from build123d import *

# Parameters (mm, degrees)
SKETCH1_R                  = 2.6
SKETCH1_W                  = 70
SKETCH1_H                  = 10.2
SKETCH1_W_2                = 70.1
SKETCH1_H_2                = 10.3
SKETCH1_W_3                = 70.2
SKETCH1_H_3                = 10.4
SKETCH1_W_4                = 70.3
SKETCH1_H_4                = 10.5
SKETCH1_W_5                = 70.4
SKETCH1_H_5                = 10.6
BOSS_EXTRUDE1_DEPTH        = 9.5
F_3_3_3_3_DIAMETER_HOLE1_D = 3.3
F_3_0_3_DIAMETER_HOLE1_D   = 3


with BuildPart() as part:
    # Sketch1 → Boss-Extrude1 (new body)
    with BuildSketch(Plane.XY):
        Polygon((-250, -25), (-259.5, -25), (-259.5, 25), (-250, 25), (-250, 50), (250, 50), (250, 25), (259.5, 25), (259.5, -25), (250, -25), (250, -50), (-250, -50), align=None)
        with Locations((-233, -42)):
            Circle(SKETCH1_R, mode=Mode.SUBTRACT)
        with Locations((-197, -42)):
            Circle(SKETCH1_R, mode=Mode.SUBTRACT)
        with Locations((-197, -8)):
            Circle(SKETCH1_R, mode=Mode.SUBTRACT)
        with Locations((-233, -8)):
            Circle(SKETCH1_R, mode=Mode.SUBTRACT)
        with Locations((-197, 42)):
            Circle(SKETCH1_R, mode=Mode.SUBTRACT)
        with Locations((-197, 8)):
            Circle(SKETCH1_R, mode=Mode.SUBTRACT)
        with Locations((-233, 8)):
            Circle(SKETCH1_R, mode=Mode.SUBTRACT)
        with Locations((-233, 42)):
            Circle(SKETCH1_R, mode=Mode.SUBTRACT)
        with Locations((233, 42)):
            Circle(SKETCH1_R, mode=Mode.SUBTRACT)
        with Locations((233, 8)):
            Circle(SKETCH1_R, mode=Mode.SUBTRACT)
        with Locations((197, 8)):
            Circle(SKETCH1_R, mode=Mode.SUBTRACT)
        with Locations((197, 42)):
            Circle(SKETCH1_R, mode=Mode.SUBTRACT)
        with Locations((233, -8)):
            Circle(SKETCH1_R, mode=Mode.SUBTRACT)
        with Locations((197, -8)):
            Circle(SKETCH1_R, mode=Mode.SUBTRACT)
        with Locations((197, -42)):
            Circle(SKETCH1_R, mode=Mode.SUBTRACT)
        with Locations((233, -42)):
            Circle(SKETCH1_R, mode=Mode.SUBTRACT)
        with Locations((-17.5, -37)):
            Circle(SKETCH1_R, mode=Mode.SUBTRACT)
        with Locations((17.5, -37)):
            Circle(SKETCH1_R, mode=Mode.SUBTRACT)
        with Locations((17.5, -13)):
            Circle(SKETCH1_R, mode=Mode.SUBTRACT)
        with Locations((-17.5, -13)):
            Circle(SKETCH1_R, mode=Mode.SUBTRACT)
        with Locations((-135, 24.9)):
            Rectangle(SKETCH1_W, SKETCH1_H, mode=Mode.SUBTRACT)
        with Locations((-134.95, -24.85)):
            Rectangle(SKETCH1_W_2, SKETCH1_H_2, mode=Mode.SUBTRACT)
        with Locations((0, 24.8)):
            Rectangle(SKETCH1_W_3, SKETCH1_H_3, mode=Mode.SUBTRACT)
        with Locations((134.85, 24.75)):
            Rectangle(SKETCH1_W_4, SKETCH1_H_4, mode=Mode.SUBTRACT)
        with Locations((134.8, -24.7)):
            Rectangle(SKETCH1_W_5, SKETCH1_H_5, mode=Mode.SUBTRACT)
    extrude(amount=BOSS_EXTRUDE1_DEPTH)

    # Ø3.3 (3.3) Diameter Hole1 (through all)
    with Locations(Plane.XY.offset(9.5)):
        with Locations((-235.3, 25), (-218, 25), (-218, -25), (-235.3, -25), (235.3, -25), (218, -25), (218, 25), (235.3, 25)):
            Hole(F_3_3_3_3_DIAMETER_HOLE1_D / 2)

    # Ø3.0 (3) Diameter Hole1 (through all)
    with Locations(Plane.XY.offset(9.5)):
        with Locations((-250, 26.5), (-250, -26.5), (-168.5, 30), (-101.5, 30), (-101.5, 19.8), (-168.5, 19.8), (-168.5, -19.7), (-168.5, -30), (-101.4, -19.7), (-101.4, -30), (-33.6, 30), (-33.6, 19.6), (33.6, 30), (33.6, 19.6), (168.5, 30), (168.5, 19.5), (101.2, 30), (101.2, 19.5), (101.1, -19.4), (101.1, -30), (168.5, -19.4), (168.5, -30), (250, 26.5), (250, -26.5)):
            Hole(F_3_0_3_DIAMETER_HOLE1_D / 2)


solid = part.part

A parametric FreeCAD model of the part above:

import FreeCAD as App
import Part
import Sketcher
Q = App.Units.Quantity


def add_polygon(sketch, points):
    """Adds a closed chain of lines whose ends are joined by coincident constraints."""
    first, n = sketch.GeometryCount, len(points)
    for a, b in zip(points, points[1:] + points[:1]):
        sketch.addGeometry(Part.LineSegment(App.Vector(*a, 0), App.Vector(*b, 0)), False)
    for i in range(n):
        sketch.addConstraint(Sketcher.Constraint("Coincident", first + i, 2, first + (i + 1) % n, 1))

doc = App.newDocument("Part")
body = doc.addObject("PartDesign::Body", "Body")

# Sketch on XY plane
sketch1 = doc.addObject("Sketcher::SketchObject", "Sketch")
body.addObject(sketch1)
sketch1.AttachmentSupport = (doc.XY_Plane, [""])
sketch1.MapMode = "FlatFace"
add_polygon(sketch1, [(-259.5, -25), (-250, -25), (-250, -50), (250, -50), (250, -25), (259.5, -25), (259.5, 25), (250, 25), (250, 50), (-250, 50), (-250, 25), (-259.5, 25)])  # lines 0-11
sketch1.addGeometry(Part.Circle(App.Vector(233, -42, 0), App.Vector(0, 0, 1), 2.6), False)  # 12
sketch1.addGeometry(Part.Circle(App.Vector(197, -42, 0), App.Vector(0, 0, 1), 2.6), False)  # 13
add_polygon(sketch1, [(99.6, -30), (99.6, -19.4), (170, -19.4), (170, -30)])  # lines 14-17
sketch1.addGeometry(Part.Circle(App.Vector(17.5, -37, 0), App.Vector(0, 0, 1), 2.6), False)  # 18
sketch1.addGeometry(Part.Circle(App.Vector(233, -8, 0), App.Vector(0, 0, 1), 2.6), False)  # 19
sketch1.addGeometry(Part.Circle(App.Vector(197, -8, 0), App.Vector(0, 0, 1), 2.6), False)  # 20
sketch1.addGeometry(Part.Circle(App.Vector(17.5, -13, 0), App.Vector(0, 0, 1), 2.6), False)  # 21
sketch1.addGeometry(Part.Circle(App.Vector(-17.5, -37, 0), App.Vector(0, 0, 1), 2.6), False)  # 22
sketch1.addGeometry(Part.Circle(App.Vector(-197, -42, 0), App.Vector(0, 0, 1), 2.6), False)  # 23
sketch1.addGeometry(Part.Circle(App.Vector(-233, -42, 0), App.Vector(0, 0, 1), 2.6), False)  # 24
add_polygon(sketch1, [(-170, -30), (-170, -19.7), (-99.9, -19.7), (-99.9, -30)])  # lines 25-28
sketch1.addGeometry(Part.Circle(App.Vector(-17.5, -13, 0), App.Vector(0, 0, 1), 2.6), False)  # 29
sketch1.addGeometry(Part.Circle(App.Vector(-197, -8, 0), App.Vector(0, 0, 1), 2.6), False)  # 30
sketch1.addGeometry(Part.Circle(App.Vector(-233, -8, 0), App.Vector(0, 0, 1), 2.6), False)  # 31
sketch1.addGeometry(Part.Circle(App.Vector(233, 8, 0), App.Vector(0, 0, 1), 2.6), False)  # 32
sketch1.addGeometry(Part.Circle(App.Vector(197, 8, 0), App.Vector(0, 0, 1), 2.6), False)  # 33
add_polygon(sketch1, [(99.7, 19.5), (99.7, 30), (170, 30), (170, 19.5)])  # lines 34-37
sketch1.addGeometry(Part.Circle(App.Vector(233, 42, 0), App.Vector(0, 0, 1), 2.6), False)  # 38
sketch1.addGeometry(Part.Circle(App.Vector(197, 42, 0), App.Vector(0, 0, 1), 2.6), False)  # 39
sketch1.addGeometry(Part.Circle(App.Vector(-197, 8, 0), App.Vector(0, 0, 1), 2.6), False)  # 40
sketch1.addGeometry(Part.Circle(App.Vector(-233, 8, 0), App.Vector(0, 0, 1), 2.6), False)  # 41
add_polygon(sketch1, [(-35.1, 19.6), (-35.1, 30), (35.1, 30), (35.1, 19.6)])  # lines 42-45
add_polygon(sketch1, [(-170, 19.8), (-170, 30), (-100, 30), (-100, 19.8)])  # lines 46-49
sketch1.addGeometry(Part.Circle(App.Vector(-197, 42, 0), App.Vector(0, 0, 1), 2.6), False)  # 50
sketch1.addGeometry(Part.Circle(App.Vector(-233, 42, 0), App.Vector(0, 0, 1), 2.6), False)  # 51
sketch1.addConstraint([
    Sketcher.Constraint("Horizontal", 0),
    Sketcher.Constraint("Vertical", 1),
    Sketcher.Constraint("Horizontal", 2),
    Sketcher.Constraint("Vertical", 3),
    Sketcher.Constraint("Horizontal", 4),
    Sketcher.Constraint("Vertical", 5),
    Sketcher.Constraint("Horizontal", 6),
    Sketcher.Constraint("Vertical", 7),
    Sketcher.Constraint("Horizontal", 8),
    Sketcher.Constraint("Vertical", 9),
    Sketcher.Constraint("Horizontal", 10),
    Sketcher.Constraint("Vertical", 11),
    Sketcher.Constraint("Vertical", 14),
    Sketcher.Constraint("Horizontal", 15),
    Sketcher.Constraint("Vertical", 16),
    Sketcher.Constraint("Horizontal", 17),
    Sketcher.Constraint("Vertical", 25),
    Sketcher.Constraint("Horizontal", 26),
    Sketcher.Constraint("Vertical", 27),
    Sketcher.Constraint("Horizontal", 28),
    Sketcher.Constraint("Vertical", 34),
    Sketcher.Constraint("Horizontal", 35),
    Sketcher.Constraint("Vertical", 36),
    Sketcher.Constraint("Horizontal", 37),
    Sketcher.Constraint("Vertical", 42),
    Sketcher.Constraint("Horizontal", 43),
    Sketcher.Constraint("Vertical", 44),
    Sketcher.Constraint("Horizontal", 45),
    Sketcher.Constraint("Vertical", 46),
    Sketcher.Constraint("Horizontal", 47),
    Sketcher.Constraint("Vertical", 48),
    Sketcher.Constraint("Horizontal", 49),
    Sketcher.Constraint("Equal", 12, 13),
    Sketcher.Constraint("Equal", 13, 18),
    Sketcher.Constraint("Equal", 18, 19),
    Sketcher.Constraint("Equal", 19, 20),
    Sketcher.Constraint("Equal", 20, 21),
    Sketcher.Constraint("Equal", 21, 22),
    Sketcher.Constraint("Equal", 22, 23),
    Sketcher.Constraint("Equal", 23, 24),
    Sketcher.Constraint("Equal", 24, 29),
    Sketcher.Constraint("Equal", 29, 30),
    Sketcher.Constraint("Equal", 30, 31),
    Sketcher.Constraint("Equal", 31, 32),
    Sketcher.Constraint("Equal", 32, 33),
    Sketcher.Constraint("Equal", 33, 38),
    Sketcher.Constraint("Equal", 38, 39),
    Sketcher.Constraint("Equal", 39, 40),
    Sketcher.Constraint("Equal", 40, 41),
    Sketcher.Constraint("Equal", 41, 50),
    Sketcher.Constraint("Equal", 50, 51),
    Sketcher.Constraint("Symmetric", 31, 3, 32, 3, -1, 1),
    Sketcher.Constraint("Symmetric", 30, 3, 33, 3, -1, 1),
    Sketcher.Constraint("Symmetric", 24, 3, 38, 3, -1, 1),
    Sketcher.Constraint("Symmetric", 23, 3, 39, 3, -1, 1),
    Sketcher.Constraint("Symmetric", 20, 3, 40, 3, -1, 1),
    Sketcher.Constraint("Symmetric", 19, 3, 41, 3, -1, 1),
    Sketcher.Constraint("Symmetric", 13, 3, 50, 3, -1, 1),
    Sketcher.Constraint("Symmetric", 12, 3, 51, 3, -1, 1),
    Sketcher.Constraint("Symmetric", 0, 2, 6, 2, -1, 1),
    Sketcher.Constraint("Symmetric", 2, 2, 8, 2, -1, 1),
    Sketcher.Constraint("Symmetric", 4, 2, 10, 2, -1, 1),
    Sketcher.Constraint("Symmetric", 28, 2, 35, 2, -1, 1),
    Sketcher.Constraint("Symmetric", 16, 2, 46, 2, -1, 1),
    Sketcher.Constraint("Symmetric", 18, 3, 22, 3, -2),
    Sketcher.Constraint("Symmetric", 13, 3, 23, 3, -2),
    Sketcher.Constraint("Symmetric", 12, 3, 24, 3, -2),
    Sketcher.Constraint("Symmetric", 21, 3, 29, 3, -2),
    Sketcher.Constraint("Symmetric", 20, 3, 30, 3, -2),
    Sketcher.Constraint("Symmetric", 19, 3, 31, 3, -2),
    Sketcher.Constraint("Symmetric", 0, 2, 3, 2, -2),
    Sketcher.Constraint("Symmetric", 16, 2, 28, 2, -2),
    Sketcher.Constraint("Horizontal", 12, 3, 13, 3),
    Sketcher.Constraint("Horizontal", 19, 3, 20, 3),
    Sketcher.Constraint("Horizontal", 35, 2, 42, 2),
    Sketcher.Constraint("Vertical", 12, 3, 19, 3),
    Sketcher.Constraint("Vertical", 13, 3, 20, 3),
    Sketcher.Constraint("Vertical", 18, 3, 21, 3),
    Sketcher.Constraint("Diameter", 12, Q("5.2 mm")),
    Sketcher.Constraint("DistanceX", 2, 1, 2, 2, Q("500 mm")),
    Sketcher.Constraint("DistanceX", 47, 1, 47, 2, Q("70 mm")),
    Sketcher.Constraint("DistanceY", 1, 2, 1, 1, Q("25 mm")),
    Sketcher.Constraint("DistanceY", 5, 1, 5, 2, Q("50 mm")),
    Sketcher.Constraint("DistanceX", 0, 1, 0, 2, Q("9.5 mm")),
    Sketcher.Constraint("DistanceX", 15, 1, 15, 2, Q("70.4 mm")),
    Sketcher.Constraint("DistanceX", 26, 1, 26, 2, Q("70.1 mm")),
    Sketcher.Constraint("DistanceX", 35, 1, 35, 2, Q("70.3 mm")),
    Sketcher.Constraint("DistanceX", 43, 1, 43, 2, Q("70.2 mm")),
    Sketcher.Constraint("DistanceY", 14, 1, 14, 2, Q("10.6 mm")),
    Sketcher.Constraint("DistanceY", 25, 1, 25, 2, Q("10.3 mm")),
    Sketcher.Constraint("DistanceY", 34, 1, 34, 2, Q("10.5 mm")),
    Sketcher.Constraint("DistanceY", 42, 1, 42, 2, Q("10.4 mm")),
    Sketcher.Constraint("DistanceY", 46, 1, 46, 2, Q("10.2 mm")),
    Sketcher.Constraint("DistanceX", -1, 1, 12, 3, Q("233 mm")),
    Sketcher.Constraint("DistanceY", 12, 3, -1, 1, Q("42 mm")),
    Sketcher.Constraint("DistanceX", -1, 1, 13, 3, Q("197 mm")),
    Sketcher.Constraint("DistanceY", 18, 3, -1, 1, Q("37 mm")),
    Sketcher.Constraint("DistanceY", 19, 3, -1, 1, Q("8 mm")),
    Sketcher.Constraint("DistanceY", 21, 3, -1, 1, Q("13 mm")),
    Sketcher.Constraint("DistanceX", -1, 1, 15, 2, Q("170 mm")),
    Sketcher.Constraint("DistanceY", 16, 2, -1, 1, Q("30 mm")),
    Sketcher.Constraint("DistanceX", 22, 3, 18, 3, Q("35 mm")),
    Sketcher.Constraint("DistanceX", 42, 2, -1, 1, Q("35.1 mm")),
])
pad1 = doc.addObject("PartDesign::Pad", "Pad")
body.addObject(pad1)
pad1.Profile = sketch1
pad1.Length = 9.5

# Sketch on XY plane
sketch2 = doc.addObject("Sketcher::SketchObject", "Sketch001")
body.addObject(sketch2)
sketch2.AttachmentSupport = (doc.XY_Plane, [""])
sketch2.MapMode = "FlatFace"
sketch2.AttachmentOffset = App.Placement(App.Vector(0, 0, 9.5), App.Rotation())
sketch2.addGeometry([
    Part.Circle(App.Vector(-235.3, 25, 0), App.Vector(0, 0, 1), 1.6),  # 0
    Part.Circle(App.Vector(-218, 25, 0), App.Vector(0, 0, 1), 1.6),  # 1
    Part.Circle(App.Vector(-218, -25, 0), App.Vector(0, 0, 1), 1.6),  # 2
    Part.Circle(App.Vector(-235.3, -25, 0), App.Vector(0, 0, 1), 1.6),  # 3
    Part.Circle(App.Vector(235.3, -25, 0), App.Vector(0, 0, 1), 1.6),  # 4
    Part.Circle(App.Vector(218, -25, 0), App.Vector(0, 0, 1), 1.6),  # 5
    Part.Circle(App.Vector(218, 25, 0), App.Vector(0, 0, 1), 1.6),  # 6
    Part.Circle(App.Vector(235.3, 25, 0), App.Vector(0, 0, 1), 1.6),  # 7
], False)
sketch2.addConstraint([
    Sketcher.Constraint("Equal", 0, 1),
    Sketcher.Constraint("Equal", 1, 2),
    Sketcher.Constraint("Equal", 2, 3),
    Sketcher.Constraint("Equal", 3, 4),
    Sketcher.Constraint("Equal", 4, 5),
    Sketcher.Constraint("Equal", 5, 6),
    Sketcher.Constraint("Equal", 6, 7),
    Sketcher.Constraint("Symmetric", 0, 3, 4, 3, -1, 1),
    Sketcher.Constraint("Symmetric", 1, 3, 5, 3, -1, 1),
    Sketcher.Constraint("Symmetric", 2, 3, 6, 3, -1, 1),
    Sketcher.Constraint("Symmetric", 3, 3, 7, 3, -1, 1),
    Sketcher.Constraint("Symmetric", 3, 3, 4, 3, -2),
    Sketcher.Constraint("Symmetric", 2, 3, 5, 3, -2),
    Sketcher.Constraint("Horizontal", 0, 3, 1, 3),
    Sketcher.Constraint("Diameter", 0, Q("3.3 mm")),
    Sketcher.Constraint("DistanceY", -1, 1, 0, 3, Q("25 mm")),
    Sketcher.Constraint("DistanceX", 1, 3, -1, 1, Q("218 mm")),
    Sketcher.Constraint("DistanceX", 0, 3, -1, 1, Q("235.3 mm")),
])
doc.recompute()
hole = doc.addObject("PartDesign::Hole", "Hole")
body.addObject(hole)
hole.Profile = sketch2
hole.ThreadType = "None"
hole.Diameter = 3.3
hole.DepthType = "ThroughAll"

# Sketch on XY plane
sketch3 = doc.addObject("Sketcher::SketchObject", "Sketch002")
body.addObject(sketch3)
sketch3.AttachmentSupport = (doc.XY_Plane, [""])
sketch3.MapMode = "FlatFace"
sketch3.AttachmentOffset = App.Placement(App.Vector(0, 0, 9.5), App.Rotation())
sketch3.addGeometry([
    Part.Circle(App.Vector(-250, 26.5, 0), App.Vector(0, 0, 1), 1.5),  # 0
    Part.Circle(App.Vector(-250, -26.5, 0), App.Vector(0, 0, 1), 1.5),  # 1
    Part.Circle(App.Vector(-168.5, 30, 0), App.Vector(0, 0, 1), 1.5),  # 2
    Part.Circle(App.Vector(-101.5, 30, 0), App.Vector(0, 0, 1), 1.5),  # 3
    Part.Circle(App.Vector(-101.5, 19.8, 0), App.Vector(0, 0, 1), 1.5),  # 4
    Part.Circle(App.Vector(-168.5, 19.8, 0), App.Vector(0, 0, 1), 1.5),  # 5
    Part.Circle(App.Vector(-168.5, -19.7, 0), App.Vector(0, 0, 1), 1.5),  # 6
    Part.Circle(App.Vector(-168.5, -30, 0), App.Vector(0, 0, 1), 1.5),  # 7
    Part.Circle(App.Vector(-101.4, -19.7, 0), App.Vector(0, 0, 1), 1.5),  # 8
    Part.Circle(App.Vector(-101.4, -30, 0), App.Vector(0, 0, 1), 1.5),  # 9
    Part.Circle(App.Vector(-33.6, 30, 0), App.Vector(0, 0, 1), 1.5),  # 10
    Part.Circle(App.Vector(-33.6, 19.6, 0), App.Vector(0, 0, 1), 1.5),  # 11
    Part.Circle(App.Vector(33.6, 30, 0), App.Vector(0, 0, 1), 1.5),  # 12
    Part.Circle(App.Vector(33.6, 19.6, 0), App.Vector(0, 0, 1), 1.5),  # 13
    Part.Circle(App.Vector(168.5, 30, 0), App.Vector(0, 0, 1), 1.5),  # 14
    Part.Circle(App.Vector(168.5, 19.5, 0), App.Vector(0, 0, 1), 1.5),  # 15
    Part.Circle(App.Vector(101.2, 30, 0), App.Vector(0, 0, 1), 1.5),  # 16
    Part.Circle(App.Vector(101.2, 19.5, 0), App.Vector(0, 0, 1), 1.5),  # 17
    Part.Circle(App.Vector(101.1, -19.4, 0), App.Vector(0, 0, 1), 1.5),  # 18
    Part.Circle(App.Vector(101.1, -30, 0), App.Vector(0, 0, 1), 1.5),  # 19
    Part.Circle(App.Vector(168.5, -19.4, 0), App.Vector(0, 0, 1), 1.5),  # 20
    Part.Circle(App.Vector(168.5, -30, 0), App.Vector(0, 0, 1), 1.5),  # 21
    Part.Circle(App.Vector(250, 26.5, 0), App.Vector(0, 0, 1), 1.5),  # 22
    Part.Circle(App.Vector(250, -26.5, 0), App.Vector(0, 0, 1), 1.5),  # 23
], False)
sketch3.addConstraint([
    Sketcher.Constraint("Equal", 0, 1),
    Sketcher.Constraint("Equal", 1, 2),
    Sketcher.Constraint("Equal", 2, 3),
    Sketcher.Constraint("Equal", 3, 4),
    Sketcher.Constraint("Equal", 4, 5),
    Sketcher.Constraint("Equal", 5, 6),
    Sketcher.Constraint("Equal", 6, 7),
    Sketcher.Constraint("Equal", 7, 8),
    Sketcher.Constraint("Equal", 8, 9),
    Sketcher.Constraint("Equal", 9, 10),
    Sketcher.Constraint("Equal", 10, 11),
    Sketcher.Constraint("Equal", 11, 12),
    Sketcher.Constraint("Equal", 12, 13),
    Sketcher.Constraint("Equal", 13, 14),
    Sketcher.Constraint("Equal", 14, 15),
    Sketcher.Constraint("Equal", 15, 16),
    Sketcher.Constraint("Equal", 16, 17),
    Sketcher.Constraint("Equal", 17, 18),
    Sketcher.Constraint("Equal", 18, 19),
    Sketcher.Constraint("Equal", 19, 20),
    Sketcher.Constraint("Equal", 20, 21),
    Sketcher.Constraint("Equal", 21, 22),
    Sketcher.Constraint("Equal", 22, 23),
    Sketcher.Constraint("Symmetric", 7, 3, 14, 3, -1, 1),
    Sketcher.Constraint("Symmetric", 2, 3, 21, 3, -1, 1),
    Sketcher.Constraint("Symmetric", 1, 3, 22, 3, -1, 1),
    Sketcher.Constraint("Symmetric", 0, 3, 23, 3, -1, 1),
    Sketcher.Constraint("Symmetric", 10, 3, 12, 3, -2),
    Sketcher.Constraint("Symmetric", 11, 3, 13, 3, -2),
    Sketcher.Constraint("Symmetric", 2, 3, 14, 3, -2),
    Sketcher.Constraint("Symmetric", 0, 3, 22, 3, -2),
    Sketcher.Constraint("Horizontal", 2, 3, 3, 3),
    Sketcher.Constraint("Horizontal", 4, 3, 5, 3),
    Sketcher.Constraint("Horizontal", 6, 3, 8, 3),
    Sketcher.Constraint("Horizontal", 7, 3, 9, 3),
    Sketcher.Constraint("Horizontal", 3, 3, 10, 3),
    Sketcher.Constraint("Horizontal", 14, 3, 16, 3),
    Sketcher.Constraint("Horizontal", 15, 3, 17, 3),
    Sketcher.Constraint("Horizontal", 9, 3, 19, 3),
    Sketcher.Constraint("Horizontal", 18, 3, 20, 3),
    Sketcher.Constraint("Vertical", 3, 3, 4, 3),
    Sketcher.Constraint("Vertical", 2, 3, 5, 3),
    Sketcher.Constraint("Vertical", 5, 3, 6, 3),
    Sketcher.Constraint("Vertical", 8, 3, 9, 3),
    Sketcher.Constraint("Vertical", 10, 3, 11, 3),
    Sketcher.Constraint("Vertical", 14, 3, 15, 3),
    Sketcher.Constraint("Vertical", 16, 3, 17, 3),
    Sketcher.Constraint("Vertical", 18, 3, 19, 3),
    Sketcher.Constraint("Vertical", 15, 3, 20, 3),
    Sketcher.Constraint("Diameter", 0, Q("3 mm")),
    Sketcher.Constraint("DistanceX", 0, 3, -1, 1, Q("250 mm")),
    Sketcher.Constraint("DistanceY", -1, 1, 2, 3, Q("30 mm")),
    Sketcher.Constraint("DistanceY", 1, 3, 0, 3, Q("53 mm")),
    Sketcher.Constraint("DistanceX", 2, 3, 3, 3, Q("67 mm")),
    Sketcher.Constraint("DistanceX", 8, 3, 12, 3, Q("135 mm")),
    Sketcher.Constraint("DistanceX", 3, 3, 14, 3, Q("270 mm")),
    Sketcher.Constraint("DistanceY", 18, 3, 13, 3, Q("39 mm")),
    Sketcher.Constraint("DistanceY", 15, 3, 22, 3, Q("7 mm")),
    Sketcher.Constraint("DistanceY", -1, 1, 4, 3, Q("19.8 mm")),
    Sketcher.Constraint("DistanceY", 6, 3, -1, 1, Q("19.7 mm")),
    Sketcher.Constraint("DistanceX", 8, 3, -1, 1, Q("101.4 mm")),
    Sketcher.Constraint("DistanceY", -1, 1, 11, 3, Q("19.6 mm")),
    Sketcher.Constraint("DistanceX", -1, 1, 16, 3, Q("101.2 mm")),
    Sketcher.Constraint("DistanceX", -1, 1, 18, 3, Q("101.1 mm")),
])
doc.recompute()
hole2 = doc.addObject("PartDesign::Hole", "Hole001")
body.addObject(hole2)
hole2.Profile = sketch3
hole2.ThreadType = "None"
hole2.Diameter = 3
hole2.DepthType = "ThroughAll"

doc.recompute()
